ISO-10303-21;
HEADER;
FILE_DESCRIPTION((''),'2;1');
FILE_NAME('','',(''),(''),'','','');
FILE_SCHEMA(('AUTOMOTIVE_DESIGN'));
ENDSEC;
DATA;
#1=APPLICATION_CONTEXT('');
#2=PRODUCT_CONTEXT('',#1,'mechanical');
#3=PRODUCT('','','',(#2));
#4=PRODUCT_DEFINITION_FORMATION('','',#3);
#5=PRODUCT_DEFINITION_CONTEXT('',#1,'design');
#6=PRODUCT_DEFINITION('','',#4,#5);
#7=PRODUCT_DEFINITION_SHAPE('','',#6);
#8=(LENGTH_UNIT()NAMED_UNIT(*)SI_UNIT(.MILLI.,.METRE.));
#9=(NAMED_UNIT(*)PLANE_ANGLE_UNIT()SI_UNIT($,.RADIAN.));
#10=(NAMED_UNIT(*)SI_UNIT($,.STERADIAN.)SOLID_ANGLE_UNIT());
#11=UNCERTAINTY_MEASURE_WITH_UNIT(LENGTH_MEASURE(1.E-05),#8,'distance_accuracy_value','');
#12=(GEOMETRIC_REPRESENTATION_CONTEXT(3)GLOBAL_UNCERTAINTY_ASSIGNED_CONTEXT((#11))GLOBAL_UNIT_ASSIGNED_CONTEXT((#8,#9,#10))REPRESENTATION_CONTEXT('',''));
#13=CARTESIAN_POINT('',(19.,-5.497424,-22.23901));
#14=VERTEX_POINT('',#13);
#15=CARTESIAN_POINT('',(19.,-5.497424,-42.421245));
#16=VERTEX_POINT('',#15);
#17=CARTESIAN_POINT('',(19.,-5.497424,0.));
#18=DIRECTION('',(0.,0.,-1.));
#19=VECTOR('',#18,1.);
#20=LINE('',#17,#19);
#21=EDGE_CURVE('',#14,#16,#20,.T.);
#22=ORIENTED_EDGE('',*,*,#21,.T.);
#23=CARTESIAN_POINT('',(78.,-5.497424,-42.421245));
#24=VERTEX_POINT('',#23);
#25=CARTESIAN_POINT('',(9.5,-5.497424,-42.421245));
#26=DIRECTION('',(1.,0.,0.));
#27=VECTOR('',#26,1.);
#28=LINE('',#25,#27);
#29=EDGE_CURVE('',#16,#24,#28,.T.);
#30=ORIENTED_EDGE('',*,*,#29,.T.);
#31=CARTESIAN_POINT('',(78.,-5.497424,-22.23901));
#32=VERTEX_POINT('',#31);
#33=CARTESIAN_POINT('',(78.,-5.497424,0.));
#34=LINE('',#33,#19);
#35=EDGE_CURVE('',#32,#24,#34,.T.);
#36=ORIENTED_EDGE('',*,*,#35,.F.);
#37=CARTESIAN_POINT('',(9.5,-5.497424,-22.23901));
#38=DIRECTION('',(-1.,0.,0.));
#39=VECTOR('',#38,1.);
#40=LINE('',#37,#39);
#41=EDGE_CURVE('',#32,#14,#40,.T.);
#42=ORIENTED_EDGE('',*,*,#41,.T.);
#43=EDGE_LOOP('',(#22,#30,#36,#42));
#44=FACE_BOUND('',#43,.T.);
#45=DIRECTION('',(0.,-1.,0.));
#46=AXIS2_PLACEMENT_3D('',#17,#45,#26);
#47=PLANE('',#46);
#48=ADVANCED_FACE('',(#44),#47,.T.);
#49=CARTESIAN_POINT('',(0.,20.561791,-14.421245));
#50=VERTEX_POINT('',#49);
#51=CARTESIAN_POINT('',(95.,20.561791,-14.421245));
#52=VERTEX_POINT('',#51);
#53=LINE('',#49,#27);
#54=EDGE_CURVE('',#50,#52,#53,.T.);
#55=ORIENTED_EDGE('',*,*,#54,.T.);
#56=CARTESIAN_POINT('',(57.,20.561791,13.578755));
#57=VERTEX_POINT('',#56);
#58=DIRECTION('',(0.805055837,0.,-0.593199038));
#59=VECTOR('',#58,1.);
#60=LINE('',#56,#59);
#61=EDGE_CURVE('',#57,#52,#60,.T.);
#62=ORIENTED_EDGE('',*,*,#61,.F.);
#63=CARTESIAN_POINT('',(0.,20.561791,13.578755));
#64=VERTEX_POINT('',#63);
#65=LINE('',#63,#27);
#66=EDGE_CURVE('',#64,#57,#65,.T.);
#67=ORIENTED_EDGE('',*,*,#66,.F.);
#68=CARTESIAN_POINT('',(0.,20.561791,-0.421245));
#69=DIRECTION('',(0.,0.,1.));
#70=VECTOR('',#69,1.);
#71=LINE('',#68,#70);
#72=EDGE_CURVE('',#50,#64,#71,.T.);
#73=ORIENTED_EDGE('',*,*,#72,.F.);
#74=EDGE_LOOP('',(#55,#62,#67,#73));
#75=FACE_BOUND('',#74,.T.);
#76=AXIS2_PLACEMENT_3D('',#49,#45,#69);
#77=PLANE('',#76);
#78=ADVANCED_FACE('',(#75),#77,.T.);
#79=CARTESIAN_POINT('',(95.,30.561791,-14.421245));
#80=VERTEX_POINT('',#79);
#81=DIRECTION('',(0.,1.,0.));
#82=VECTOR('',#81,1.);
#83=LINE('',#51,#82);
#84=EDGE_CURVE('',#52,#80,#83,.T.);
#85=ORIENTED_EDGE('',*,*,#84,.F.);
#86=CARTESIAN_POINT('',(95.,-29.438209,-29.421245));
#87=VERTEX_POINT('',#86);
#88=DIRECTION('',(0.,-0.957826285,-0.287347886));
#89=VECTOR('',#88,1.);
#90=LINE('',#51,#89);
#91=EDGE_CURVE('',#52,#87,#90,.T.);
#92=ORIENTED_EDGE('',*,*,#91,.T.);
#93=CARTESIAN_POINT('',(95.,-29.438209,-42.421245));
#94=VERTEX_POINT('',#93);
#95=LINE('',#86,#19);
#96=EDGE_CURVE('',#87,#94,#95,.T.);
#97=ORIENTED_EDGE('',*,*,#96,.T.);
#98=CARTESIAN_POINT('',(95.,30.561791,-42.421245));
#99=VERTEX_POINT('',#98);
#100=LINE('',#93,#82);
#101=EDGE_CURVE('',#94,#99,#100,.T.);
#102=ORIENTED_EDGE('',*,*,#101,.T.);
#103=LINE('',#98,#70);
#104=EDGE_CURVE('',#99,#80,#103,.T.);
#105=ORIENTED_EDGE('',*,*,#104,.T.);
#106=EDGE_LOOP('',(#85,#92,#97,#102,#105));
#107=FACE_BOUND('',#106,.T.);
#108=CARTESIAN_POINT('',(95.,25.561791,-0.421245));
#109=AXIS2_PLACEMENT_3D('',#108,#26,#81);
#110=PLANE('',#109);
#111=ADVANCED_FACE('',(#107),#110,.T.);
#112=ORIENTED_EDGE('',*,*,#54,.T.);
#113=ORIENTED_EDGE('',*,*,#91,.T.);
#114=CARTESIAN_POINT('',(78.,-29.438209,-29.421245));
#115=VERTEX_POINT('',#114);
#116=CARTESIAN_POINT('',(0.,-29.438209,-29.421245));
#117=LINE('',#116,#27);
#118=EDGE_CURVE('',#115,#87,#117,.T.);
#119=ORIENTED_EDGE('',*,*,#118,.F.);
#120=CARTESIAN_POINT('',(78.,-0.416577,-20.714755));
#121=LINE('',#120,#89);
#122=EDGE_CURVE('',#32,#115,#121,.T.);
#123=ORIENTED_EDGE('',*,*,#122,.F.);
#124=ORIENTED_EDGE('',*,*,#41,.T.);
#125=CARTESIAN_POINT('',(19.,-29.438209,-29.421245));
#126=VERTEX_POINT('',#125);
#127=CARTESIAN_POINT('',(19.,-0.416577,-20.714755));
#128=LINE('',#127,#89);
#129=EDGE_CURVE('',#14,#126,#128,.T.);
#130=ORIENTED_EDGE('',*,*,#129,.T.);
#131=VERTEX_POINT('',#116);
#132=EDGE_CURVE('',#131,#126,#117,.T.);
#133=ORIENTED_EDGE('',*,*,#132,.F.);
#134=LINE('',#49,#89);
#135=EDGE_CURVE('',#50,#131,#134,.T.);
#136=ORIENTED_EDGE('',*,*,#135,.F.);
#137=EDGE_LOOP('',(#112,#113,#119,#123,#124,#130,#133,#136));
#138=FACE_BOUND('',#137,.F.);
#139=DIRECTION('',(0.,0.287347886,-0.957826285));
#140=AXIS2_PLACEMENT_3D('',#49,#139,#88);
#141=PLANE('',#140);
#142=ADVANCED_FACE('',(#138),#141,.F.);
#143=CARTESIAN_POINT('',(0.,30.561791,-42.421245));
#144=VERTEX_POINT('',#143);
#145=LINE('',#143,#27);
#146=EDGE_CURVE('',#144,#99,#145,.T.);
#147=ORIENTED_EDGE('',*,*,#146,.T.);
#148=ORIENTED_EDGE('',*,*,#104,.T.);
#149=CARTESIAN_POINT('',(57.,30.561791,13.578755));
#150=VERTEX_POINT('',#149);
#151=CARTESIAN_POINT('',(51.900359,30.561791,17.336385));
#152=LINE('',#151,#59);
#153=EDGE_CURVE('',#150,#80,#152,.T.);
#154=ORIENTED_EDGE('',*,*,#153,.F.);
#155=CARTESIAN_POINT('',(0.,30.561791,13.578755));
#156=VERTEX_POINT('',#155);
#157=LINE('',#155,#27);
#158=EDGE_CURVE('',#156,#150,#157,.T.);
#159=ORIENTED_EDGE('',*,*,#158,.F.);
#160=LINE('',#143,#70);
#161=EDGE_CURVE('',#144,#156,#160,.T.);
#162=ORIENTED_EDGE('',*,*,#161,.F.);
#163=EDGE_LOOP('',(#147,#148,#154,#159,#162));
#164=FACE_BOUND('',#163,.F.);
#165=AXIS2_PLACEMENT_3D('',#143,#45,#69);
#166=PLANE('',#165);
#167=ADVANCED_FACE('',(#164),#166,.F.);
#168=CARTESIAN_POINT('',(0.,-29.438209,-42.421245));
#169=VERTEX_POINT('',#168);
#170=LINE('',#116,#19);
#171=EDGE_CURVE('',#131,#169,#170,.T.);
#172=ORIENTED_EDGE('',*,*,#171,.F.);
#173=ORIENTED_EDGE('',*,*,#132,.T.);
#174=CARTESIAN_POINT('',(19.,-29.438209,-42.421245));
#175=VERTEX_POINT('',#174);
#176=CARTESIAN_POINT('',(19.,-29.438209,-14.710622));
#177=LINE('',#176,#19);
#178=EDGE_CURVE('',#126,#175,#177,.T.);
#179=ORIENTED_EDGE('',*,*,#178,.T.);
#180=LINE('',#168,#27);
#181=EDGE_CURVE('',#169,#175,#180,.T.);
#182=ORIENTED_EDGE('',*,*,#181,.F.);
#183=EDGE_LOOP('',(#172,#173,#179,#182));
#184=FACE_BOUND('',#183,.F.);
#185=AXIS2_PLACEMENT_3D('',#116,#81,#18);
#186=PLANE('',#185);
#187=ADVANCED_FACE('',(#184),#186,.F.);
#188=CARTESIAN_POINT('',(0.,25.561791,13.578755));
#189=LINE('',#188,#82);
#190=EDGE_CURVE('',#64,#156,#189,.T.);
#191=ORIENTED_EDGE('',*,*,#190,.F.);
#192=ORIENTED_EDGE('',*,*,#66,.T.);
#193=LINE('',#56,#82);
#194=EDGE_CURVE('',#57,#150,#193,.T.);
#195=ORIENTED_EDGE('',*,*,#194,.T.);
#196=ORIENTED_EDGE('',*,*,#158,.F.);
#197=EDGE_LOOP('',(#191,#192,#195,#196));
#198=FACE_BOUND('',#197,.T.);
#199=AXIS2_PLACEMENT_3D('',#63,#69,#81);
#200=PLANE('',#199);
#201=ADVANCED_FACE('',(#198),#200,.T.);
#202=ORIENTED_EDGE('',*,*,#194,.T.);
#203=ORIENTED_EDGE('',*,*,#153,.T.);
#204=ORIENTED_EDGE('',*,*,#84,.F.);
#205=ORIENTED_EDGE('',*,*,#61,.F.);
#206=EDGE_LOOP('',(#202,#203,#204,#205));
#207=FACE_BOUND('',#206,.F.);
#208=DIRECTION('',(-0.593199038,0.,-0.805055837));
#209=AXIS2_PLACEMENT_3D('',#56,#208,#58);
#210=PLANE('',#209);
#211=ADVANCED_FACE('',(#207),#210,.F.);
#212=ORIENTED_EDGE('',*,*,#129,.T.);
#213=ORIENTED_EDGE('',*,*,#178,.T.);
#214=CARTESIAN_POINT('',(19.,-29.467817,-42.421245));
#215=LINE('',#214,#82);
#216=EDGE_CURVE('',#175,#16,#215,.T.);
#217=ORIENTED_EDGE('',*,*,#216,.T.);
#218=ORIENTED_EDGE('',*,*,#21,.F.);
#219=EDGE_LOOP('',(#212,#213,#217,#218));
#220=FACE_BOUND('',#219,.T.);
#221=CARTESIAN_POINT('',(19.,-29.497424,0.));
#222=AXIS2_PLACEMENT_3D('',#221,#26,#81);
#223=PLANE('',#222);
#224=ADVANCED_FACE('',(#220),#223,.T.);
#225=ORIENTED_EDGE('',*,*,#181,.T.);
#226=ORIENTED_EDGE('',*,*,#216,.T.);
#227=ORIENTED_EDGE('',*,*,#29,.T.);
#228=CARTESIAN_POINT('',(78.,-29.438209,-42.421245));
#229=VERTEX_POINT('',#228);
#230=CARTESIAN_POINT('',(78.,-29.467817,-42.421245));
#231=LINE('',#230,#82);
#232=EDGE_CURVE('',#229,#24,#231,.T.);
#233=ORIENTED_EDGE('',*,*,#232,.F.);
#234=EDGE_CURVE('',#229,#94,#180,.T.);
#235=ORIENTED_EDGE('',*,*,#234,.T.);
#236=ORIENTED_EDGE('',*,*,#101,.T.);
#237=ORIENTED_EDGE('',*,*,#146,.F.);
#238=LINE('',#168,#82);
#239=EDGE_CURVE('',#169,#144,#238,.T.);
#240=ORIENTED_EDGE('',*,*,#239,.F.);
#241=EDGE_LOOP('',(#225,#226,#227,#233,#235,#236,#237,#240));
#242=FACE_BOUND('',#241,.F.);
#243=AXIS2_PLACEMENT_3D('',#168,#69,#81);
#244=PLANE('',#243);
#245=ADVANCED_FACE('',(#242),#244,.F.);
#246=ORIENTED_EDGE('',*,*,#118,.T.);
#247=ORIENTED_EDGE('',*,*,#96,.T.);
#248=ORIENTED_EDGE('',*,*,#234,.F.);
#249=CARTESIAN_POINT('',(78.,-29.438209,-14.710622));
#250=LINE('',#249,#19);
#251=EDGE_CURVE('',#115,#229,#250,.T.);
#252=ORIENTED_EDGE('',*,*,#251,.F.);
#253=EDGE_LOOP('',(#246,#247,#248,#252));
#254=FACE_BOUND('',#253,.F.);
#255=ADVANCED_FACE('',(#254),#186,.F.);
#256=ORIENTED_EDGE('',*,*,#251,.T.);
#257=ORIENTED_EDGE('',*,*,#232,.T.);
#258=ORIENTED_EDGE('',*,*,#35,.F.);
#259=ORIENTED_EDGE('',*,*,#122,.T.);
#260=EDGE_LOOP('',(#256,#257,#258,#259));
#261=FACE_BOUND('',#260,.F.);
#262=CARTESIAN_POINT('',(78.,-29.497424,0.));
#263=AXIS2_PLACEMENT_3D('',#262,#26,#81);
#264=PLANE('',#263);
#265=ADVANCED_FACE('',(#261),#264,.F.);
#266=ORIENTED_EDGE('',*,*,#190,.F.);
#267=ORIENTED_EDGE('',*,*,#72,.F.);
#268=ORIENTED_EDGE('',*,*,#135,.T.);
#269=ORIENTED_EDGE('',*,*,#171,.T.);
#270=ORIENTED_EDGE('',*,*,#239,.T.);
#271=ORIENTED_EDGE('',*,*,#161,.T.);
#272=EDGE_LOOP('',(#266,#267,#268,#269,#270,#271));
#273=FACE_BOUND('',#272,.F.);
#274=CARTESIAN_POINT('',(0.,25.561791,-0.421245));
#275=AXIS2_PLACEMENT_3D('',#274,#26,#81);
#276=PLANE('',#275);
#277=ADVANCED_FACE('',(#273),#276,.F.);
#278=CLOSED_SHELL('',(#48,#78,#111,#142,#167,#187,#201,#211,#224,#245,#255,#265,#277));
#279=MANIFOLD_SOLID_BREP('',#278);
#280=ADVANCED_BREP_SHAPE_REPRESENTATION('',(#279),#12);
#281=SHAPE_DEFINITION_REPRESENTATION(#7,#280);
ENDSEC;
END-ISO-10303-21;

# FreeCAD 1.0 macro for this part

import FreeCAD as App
import Part
import Sketcher

doc = App.newDocument("Part")
body = doc.addObject("PartDesign::Body", "Body")

# Sketch on YZ plane
sketch1 = doc.addObject("Sketcher::SketchObject", "Sketch")
body.addObject(sketch1)
sketch1.AttachmentSupport = (doc.YZ_Plane, [""])
sketch1.MapMode = "FlatFace"
sketch1.addGeometry(Part.LineSegment(App.Vector(20.561791, 13.578755, 0), App.Vector(20.561791, -14.421245, 0)), False)
sketch1.addGeometry(Part.LineSegment(App.Vector(20.561791, -14.421245, 0), App.Vector(-29.438209, -29.421245, 0)), False)
sketch1.addGeometry(Part.LineSegment(App.Vector(-29.438209, -29.421245, 0), App.Vector(-29.438209, -42.421245, 0)), False)
sketch1.addGeometry(Part.LineSegment(App.Vector(-29.438209, -42.421245, 0), App.Vector(30.561791, -42.421245, 0)), False)
sketch1.addGeometry(Part.LineSegment(App.Vector(30.561791, -42.421245, 0), App.Vector(30.561791, 13.578755, 0)), False)
sketch1.addGeometry(Part.LineSegment(App.Vector(30.561791, 13.578755, 0), App.Vector(20.561791, 13.578755, 0)), False)
sketch1.addConstraint(Sketcher.Constraint("Coincident", 0, 2, 1, 1))
sketch1.addConstraint(Sketcher.Constraint("Coincident", 1, 2, 2, 1))
sketch1.addConstraint(Sketcher.Constraint("Coincident", 2, 2, 3, 1))
sketch1.addConstraint(Sketcher.Constraint("Coincident", 3, 2, 4, 1))
sketch1.addConstraint(Sketcher.Constraint("Coincident", 4, 2, 5, 1))
sketch1.addConstraint(Sketcher.Constraint("Coincident", 5, 2, 0, 1))
sketch1.addConstraint(Sketcher.Constraint("Vertical", 0))
sketch1.addConstraint(Sketcher.Constraint("Vertical", 2))
sketch1.addConstraint(Sketcher.Constraint("Horizontal", 3))
sketch1.addConstraint(Sketcher.Constraint("Vertical", 4))
sketch1.addConstraint(Sketcher.Constraint("Horizontal", 5))
sketch1.addConstraint(Sketcher.Constraint("DistanceX", 3, 1, 3, 2, 60.0))
sketch1.addConstraint(Sketcher.Constraint("DistanceX", 5, 2, 5, 1, 10.0))
sketch1.addConstraint(Sketcher.Constraint("DistanceY", 0, 2, 0, 1, 28.0))
sketch1.addConstraint(Sketcher.Constraint("DistanceY", 2, 2, 2, 1, 13.0))
sketch1.addConstraint(Sketcher.Constraint("DistanceY", 4, 1, 4, 2, 56.0))
sketch1.addConstraint(Sketcher.Constraint("DistanceX", -1, 1, 0, 2, 20.561791))
sketch1.addConstraint(Sketcher.Constraint("DistanceY", 0, 2, -1, 1, 14.421245))
pad1 = doc.addObject("PartDesign::Pad", "Pad")
body.addObject(pad1)
pad1.Profile = sketch1
pad1.Length = 95

# Sketch on XZ plane
sketch2 = doc.addObject("Sketcher::SketchObject", "Sketch001")
body.addObject(sketch2)
sketch2.AttachmentSupport = (doc.XZ_Plane, [""])
sketch2.MapMode = "FlatFace"
sketch2.AttachmentOffset = App.Placement(App.Vector(0, 0, -20.561791), App.Rotation())
sketch2.addGeometry(Part.LineSegment(App.Vector(95, 13.578755, 0), App.Vector(57, 13.578755, 0)), False)
sketch2.addGeometry(Part.LineSegment(App.Vector(57, 13.578755, 0), App.Vector(95, -14.421245, 0)), False)
sketch2.addGeometry(Part.LineSegment(App.Vector(95, -14.421245, 0), App.Vector(95, 13.578755, 0)), False)
sketch2.addConstraint(Sketcher.Constraint("Coincident", 0, 2, 1, 1))
sketch2.addConstraint(Sketcher.Constraint("Coincident", 1, 2, 2, 1))
sketch2.addConstraint(Sketcher.Constraint("Coincident", 2, 2, 0, 1))
sketch2.addConstraint(Sketcher.Constraint("Horizontal", 0))
sketch2.addConstraint(Sketcher.Constraint("Vertical", 2))
sketch2.addConstraint(Sketcher.Constraint("DistanceX", 0, 2, 0, 1, 38.0))
sketch2.addConstraint(Sketcher.Constraint("DistanceY", 2, 1, 2, 2, 28.0))
sketch2.addConstraint(Sketcher.Constraint("DistanceX", -1, 1, 0, 2, 57.0))
sketch2.addConstraint(Sketcher.Constraint("DistanceY", -1, 1, 0, 2, 13.578755))
pocket1 = doc.addObject("PartDesign::Pocket", "Pocket")
body.addObject(pocket1)
pocket1.Profile = sketch2
pocket1.Length = 39.5

# Sketch on XY plane
sketch3 = doc.addObject("Sketcher::SketchObject", "Sketch002")
body.addObject(sketch3)
sketch3.AttachmentSupport = (doc.XY_Plane, [""])
sketch3.MapMode = "FlatFace"
sketch3.addGeometry(Part.LineSegment(App.Vector(19, -5.497424, 0), App.Vector(19, -29.497424, 0)), False)
sketch3.addGeometry(Part.LineSegment(App.Vector(19, -29.497424, 0), App.Vector(78, -29.497424, 0)), False)
sketch3.addGeometry(Part.LineSegment(App.Vector(78, -29.497424, 0), App.Vector(78, -5.497424, 0)), False)
sketch3.addGeometry(Part.LineSegment(App.Vector(78, -5.497424, 0), App.Vector(19, -5.497424, 0)), False)
sketch3.addConstraint(Sketcher.Constraint("Coincident", 0, 2, 1, 1))
sketch3.addConstraint(Sketcher.Constraint("Coincident", 1, 2, 2, 1))
sketch3.addConstraint(Sketcher.Constraint("Coincident", 2, 2, 3, 1))
sketch3.addConstraint(Sketcher.Constraint("Coincident", 3, 2, 0, 1))
sketch3.addConstraint(Sketcher.Constraint("Vertical", 0))
sketch3.addConstraint(Sketcher.Constraint("Horizontal", 1))
sketch3.addConstraint(Sketcher.Constraint("Vertical", 2))
sketch3.addConstraint(Sketcher.Constraint("Horizontal", 3))
sketch3.addConstraint(Sketcher.Constraint("DistanceX", 1, 1, 1, 2, 59.0))
sketch3.addConstraint(Sketcher.Constraint("DistanceY", 0, 2, 0, 1, 24.0))
sketch3.addConstraint(Sketcher.Constraint("DistanceX", -1, 1, 0, 2, 19.0))
sketch3.addConstraint(Sketcher.Constraint("DistanceY", 0, 2, -1, 1, 29.497424))
pocket2 = doc.addObject("PartDesign::Pocket", "Pocket001")
body.addObject(pocket2)
pocket2.Profile = sketch3
pocket2.Length = 192

doc.recompute()
